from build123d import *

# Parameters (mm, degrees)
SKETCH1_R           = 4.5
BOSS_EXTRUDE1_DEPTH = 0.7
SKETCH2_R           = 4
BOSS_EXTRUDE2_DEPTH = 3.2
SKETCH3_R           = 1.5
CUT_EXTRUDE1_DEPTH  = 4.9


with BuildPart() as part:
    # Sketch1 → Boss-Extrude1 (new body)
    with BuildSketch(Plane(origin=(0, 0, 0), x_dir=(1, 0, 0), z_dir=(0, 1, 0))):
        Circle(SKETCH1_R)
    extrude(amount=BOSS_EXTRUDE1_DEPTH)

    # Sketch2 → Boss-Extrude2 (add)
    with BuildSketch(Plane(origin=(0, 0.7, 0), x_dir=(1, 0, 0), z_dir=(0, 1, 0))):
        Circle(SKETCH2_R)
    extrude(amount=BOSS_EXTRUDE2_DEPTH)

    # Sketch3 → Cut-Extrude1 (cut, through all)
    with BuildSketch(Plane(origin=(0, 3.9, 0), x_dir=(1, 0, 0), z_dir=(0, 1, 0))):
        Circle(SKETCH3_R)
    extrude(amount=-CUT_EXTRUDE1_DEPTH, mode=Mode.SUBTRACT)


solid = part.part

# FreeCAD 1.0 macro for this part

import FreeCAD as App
import Part
import Sketcher
from FreeCAD import Vector

doc = App.newDocument("Part")
params = doc.addObject("Spreadsheet::Sheet", "Params")
for row, (alias, value) in enumerate([
    ("sketch1_diameter", "9 mm"),
    ("pad1_length", "0.7 mm"),
    ("sketch2_diameter", "8 mm"),
    ("pad2_length", "3.2 mm"),
    ("sketch3_diameter", "3 mm"),
], start=1):
    params.set(f"A{row}", alias)
    params.set(f"B{row}", "=" + value)
    params.setAlias(f"B{row}", alias)

body = doc.addObject("PartDesign::Body", "Body")

# Sketch on XZ plane
sketch1 = body.newObject("Sketcher::SketchObject", "Sketch")
sketch1.AttachmentSupport = (doc.getObject("XZ_Plane"), [""])
sketch1.MapMode = "FlatFace"
sketch1.addGeometry(Part.Circle(Vector(0, 0, 0), Vector(0, 0, 1), 4.5), False)
sketch1.addConstraint([
    Sketcher.Constraint("Coincident", 0, 3, -1, 1),
    Sketcher.Constraint("Diameter", 0, 9.0),
])
sketch1.setExpression("Constraints[1]", "Params.sketch1_diameter")
pad1 = body.newObject("PartDesign::Pad", "Pad")
pad1.Profile = sketch1
pad1.setExpression("Length", "Params.pad1_length")
pad1.Reversed = True

# Sketch on XZ plane
sketch2 = body.newObject("Sketcher::SketchObject", "Sketch001")
sketch2.AttachmentSupport = (doc.getObject("XZ_Plane"), [""])
sketch2.MapMode = "FlatFace"
sketch2.AttachmentOffset = App.Placement(Vector(0, 0, -0.7), App.Rotation())
sketch2.addGeometry(Part.Circle(Vector(0, 0, 0), Vector(0, 0, 1), 4), False)
sketch2.addConstraint([
    Sketcher.Constraint("Coincident", 0, 3, -1, 1),
    Sketcher.Constraint("Diameter", 0, 8.0),
])
sketch2.setExpression("Constraints[1]", "Params.sketch2_diameter")
pad2 = body.newObject("PartDesign::Pad", "Pad001")
pad2.Profile = sketch2
pad2.setExpression("Length", "Params.pad2_length")
pad2.Reversed = True

# Sketch on XZ plane
sketch3 = body.newObject("Sketcher::SketchObject", "Sketch002")
sketch3.AttachmentSupport = (doc.getObject("XZ_Plane"), [""])
sketch3.MapMode = "FlatFace"
sketch3.AttachmentOffset = App.Placement(Vector(0, 0, -3.9), App.Rotation())
sketch3.addGeometry(Part.Circle(Vector(0, 0, 0), Vector(0, 0, 1), 1.5), False)
sketch3.addConstraint([
    Sketcher.Constraint("Coincident", 0, 3, -1, 1),
    Sketcher.Constraint("Diameter", 0, 3.0),
])
sketch3.setExpression("Constraints[1]", "Params.sketch3_diameter")
pocket1 = body.newObject("PartDesign::Pocket", "Pocket")
pocket1.Profile = sketch3
pocket1.Type = "ThroughAll"
pocket1.Reversed = True

doc.recompute()
